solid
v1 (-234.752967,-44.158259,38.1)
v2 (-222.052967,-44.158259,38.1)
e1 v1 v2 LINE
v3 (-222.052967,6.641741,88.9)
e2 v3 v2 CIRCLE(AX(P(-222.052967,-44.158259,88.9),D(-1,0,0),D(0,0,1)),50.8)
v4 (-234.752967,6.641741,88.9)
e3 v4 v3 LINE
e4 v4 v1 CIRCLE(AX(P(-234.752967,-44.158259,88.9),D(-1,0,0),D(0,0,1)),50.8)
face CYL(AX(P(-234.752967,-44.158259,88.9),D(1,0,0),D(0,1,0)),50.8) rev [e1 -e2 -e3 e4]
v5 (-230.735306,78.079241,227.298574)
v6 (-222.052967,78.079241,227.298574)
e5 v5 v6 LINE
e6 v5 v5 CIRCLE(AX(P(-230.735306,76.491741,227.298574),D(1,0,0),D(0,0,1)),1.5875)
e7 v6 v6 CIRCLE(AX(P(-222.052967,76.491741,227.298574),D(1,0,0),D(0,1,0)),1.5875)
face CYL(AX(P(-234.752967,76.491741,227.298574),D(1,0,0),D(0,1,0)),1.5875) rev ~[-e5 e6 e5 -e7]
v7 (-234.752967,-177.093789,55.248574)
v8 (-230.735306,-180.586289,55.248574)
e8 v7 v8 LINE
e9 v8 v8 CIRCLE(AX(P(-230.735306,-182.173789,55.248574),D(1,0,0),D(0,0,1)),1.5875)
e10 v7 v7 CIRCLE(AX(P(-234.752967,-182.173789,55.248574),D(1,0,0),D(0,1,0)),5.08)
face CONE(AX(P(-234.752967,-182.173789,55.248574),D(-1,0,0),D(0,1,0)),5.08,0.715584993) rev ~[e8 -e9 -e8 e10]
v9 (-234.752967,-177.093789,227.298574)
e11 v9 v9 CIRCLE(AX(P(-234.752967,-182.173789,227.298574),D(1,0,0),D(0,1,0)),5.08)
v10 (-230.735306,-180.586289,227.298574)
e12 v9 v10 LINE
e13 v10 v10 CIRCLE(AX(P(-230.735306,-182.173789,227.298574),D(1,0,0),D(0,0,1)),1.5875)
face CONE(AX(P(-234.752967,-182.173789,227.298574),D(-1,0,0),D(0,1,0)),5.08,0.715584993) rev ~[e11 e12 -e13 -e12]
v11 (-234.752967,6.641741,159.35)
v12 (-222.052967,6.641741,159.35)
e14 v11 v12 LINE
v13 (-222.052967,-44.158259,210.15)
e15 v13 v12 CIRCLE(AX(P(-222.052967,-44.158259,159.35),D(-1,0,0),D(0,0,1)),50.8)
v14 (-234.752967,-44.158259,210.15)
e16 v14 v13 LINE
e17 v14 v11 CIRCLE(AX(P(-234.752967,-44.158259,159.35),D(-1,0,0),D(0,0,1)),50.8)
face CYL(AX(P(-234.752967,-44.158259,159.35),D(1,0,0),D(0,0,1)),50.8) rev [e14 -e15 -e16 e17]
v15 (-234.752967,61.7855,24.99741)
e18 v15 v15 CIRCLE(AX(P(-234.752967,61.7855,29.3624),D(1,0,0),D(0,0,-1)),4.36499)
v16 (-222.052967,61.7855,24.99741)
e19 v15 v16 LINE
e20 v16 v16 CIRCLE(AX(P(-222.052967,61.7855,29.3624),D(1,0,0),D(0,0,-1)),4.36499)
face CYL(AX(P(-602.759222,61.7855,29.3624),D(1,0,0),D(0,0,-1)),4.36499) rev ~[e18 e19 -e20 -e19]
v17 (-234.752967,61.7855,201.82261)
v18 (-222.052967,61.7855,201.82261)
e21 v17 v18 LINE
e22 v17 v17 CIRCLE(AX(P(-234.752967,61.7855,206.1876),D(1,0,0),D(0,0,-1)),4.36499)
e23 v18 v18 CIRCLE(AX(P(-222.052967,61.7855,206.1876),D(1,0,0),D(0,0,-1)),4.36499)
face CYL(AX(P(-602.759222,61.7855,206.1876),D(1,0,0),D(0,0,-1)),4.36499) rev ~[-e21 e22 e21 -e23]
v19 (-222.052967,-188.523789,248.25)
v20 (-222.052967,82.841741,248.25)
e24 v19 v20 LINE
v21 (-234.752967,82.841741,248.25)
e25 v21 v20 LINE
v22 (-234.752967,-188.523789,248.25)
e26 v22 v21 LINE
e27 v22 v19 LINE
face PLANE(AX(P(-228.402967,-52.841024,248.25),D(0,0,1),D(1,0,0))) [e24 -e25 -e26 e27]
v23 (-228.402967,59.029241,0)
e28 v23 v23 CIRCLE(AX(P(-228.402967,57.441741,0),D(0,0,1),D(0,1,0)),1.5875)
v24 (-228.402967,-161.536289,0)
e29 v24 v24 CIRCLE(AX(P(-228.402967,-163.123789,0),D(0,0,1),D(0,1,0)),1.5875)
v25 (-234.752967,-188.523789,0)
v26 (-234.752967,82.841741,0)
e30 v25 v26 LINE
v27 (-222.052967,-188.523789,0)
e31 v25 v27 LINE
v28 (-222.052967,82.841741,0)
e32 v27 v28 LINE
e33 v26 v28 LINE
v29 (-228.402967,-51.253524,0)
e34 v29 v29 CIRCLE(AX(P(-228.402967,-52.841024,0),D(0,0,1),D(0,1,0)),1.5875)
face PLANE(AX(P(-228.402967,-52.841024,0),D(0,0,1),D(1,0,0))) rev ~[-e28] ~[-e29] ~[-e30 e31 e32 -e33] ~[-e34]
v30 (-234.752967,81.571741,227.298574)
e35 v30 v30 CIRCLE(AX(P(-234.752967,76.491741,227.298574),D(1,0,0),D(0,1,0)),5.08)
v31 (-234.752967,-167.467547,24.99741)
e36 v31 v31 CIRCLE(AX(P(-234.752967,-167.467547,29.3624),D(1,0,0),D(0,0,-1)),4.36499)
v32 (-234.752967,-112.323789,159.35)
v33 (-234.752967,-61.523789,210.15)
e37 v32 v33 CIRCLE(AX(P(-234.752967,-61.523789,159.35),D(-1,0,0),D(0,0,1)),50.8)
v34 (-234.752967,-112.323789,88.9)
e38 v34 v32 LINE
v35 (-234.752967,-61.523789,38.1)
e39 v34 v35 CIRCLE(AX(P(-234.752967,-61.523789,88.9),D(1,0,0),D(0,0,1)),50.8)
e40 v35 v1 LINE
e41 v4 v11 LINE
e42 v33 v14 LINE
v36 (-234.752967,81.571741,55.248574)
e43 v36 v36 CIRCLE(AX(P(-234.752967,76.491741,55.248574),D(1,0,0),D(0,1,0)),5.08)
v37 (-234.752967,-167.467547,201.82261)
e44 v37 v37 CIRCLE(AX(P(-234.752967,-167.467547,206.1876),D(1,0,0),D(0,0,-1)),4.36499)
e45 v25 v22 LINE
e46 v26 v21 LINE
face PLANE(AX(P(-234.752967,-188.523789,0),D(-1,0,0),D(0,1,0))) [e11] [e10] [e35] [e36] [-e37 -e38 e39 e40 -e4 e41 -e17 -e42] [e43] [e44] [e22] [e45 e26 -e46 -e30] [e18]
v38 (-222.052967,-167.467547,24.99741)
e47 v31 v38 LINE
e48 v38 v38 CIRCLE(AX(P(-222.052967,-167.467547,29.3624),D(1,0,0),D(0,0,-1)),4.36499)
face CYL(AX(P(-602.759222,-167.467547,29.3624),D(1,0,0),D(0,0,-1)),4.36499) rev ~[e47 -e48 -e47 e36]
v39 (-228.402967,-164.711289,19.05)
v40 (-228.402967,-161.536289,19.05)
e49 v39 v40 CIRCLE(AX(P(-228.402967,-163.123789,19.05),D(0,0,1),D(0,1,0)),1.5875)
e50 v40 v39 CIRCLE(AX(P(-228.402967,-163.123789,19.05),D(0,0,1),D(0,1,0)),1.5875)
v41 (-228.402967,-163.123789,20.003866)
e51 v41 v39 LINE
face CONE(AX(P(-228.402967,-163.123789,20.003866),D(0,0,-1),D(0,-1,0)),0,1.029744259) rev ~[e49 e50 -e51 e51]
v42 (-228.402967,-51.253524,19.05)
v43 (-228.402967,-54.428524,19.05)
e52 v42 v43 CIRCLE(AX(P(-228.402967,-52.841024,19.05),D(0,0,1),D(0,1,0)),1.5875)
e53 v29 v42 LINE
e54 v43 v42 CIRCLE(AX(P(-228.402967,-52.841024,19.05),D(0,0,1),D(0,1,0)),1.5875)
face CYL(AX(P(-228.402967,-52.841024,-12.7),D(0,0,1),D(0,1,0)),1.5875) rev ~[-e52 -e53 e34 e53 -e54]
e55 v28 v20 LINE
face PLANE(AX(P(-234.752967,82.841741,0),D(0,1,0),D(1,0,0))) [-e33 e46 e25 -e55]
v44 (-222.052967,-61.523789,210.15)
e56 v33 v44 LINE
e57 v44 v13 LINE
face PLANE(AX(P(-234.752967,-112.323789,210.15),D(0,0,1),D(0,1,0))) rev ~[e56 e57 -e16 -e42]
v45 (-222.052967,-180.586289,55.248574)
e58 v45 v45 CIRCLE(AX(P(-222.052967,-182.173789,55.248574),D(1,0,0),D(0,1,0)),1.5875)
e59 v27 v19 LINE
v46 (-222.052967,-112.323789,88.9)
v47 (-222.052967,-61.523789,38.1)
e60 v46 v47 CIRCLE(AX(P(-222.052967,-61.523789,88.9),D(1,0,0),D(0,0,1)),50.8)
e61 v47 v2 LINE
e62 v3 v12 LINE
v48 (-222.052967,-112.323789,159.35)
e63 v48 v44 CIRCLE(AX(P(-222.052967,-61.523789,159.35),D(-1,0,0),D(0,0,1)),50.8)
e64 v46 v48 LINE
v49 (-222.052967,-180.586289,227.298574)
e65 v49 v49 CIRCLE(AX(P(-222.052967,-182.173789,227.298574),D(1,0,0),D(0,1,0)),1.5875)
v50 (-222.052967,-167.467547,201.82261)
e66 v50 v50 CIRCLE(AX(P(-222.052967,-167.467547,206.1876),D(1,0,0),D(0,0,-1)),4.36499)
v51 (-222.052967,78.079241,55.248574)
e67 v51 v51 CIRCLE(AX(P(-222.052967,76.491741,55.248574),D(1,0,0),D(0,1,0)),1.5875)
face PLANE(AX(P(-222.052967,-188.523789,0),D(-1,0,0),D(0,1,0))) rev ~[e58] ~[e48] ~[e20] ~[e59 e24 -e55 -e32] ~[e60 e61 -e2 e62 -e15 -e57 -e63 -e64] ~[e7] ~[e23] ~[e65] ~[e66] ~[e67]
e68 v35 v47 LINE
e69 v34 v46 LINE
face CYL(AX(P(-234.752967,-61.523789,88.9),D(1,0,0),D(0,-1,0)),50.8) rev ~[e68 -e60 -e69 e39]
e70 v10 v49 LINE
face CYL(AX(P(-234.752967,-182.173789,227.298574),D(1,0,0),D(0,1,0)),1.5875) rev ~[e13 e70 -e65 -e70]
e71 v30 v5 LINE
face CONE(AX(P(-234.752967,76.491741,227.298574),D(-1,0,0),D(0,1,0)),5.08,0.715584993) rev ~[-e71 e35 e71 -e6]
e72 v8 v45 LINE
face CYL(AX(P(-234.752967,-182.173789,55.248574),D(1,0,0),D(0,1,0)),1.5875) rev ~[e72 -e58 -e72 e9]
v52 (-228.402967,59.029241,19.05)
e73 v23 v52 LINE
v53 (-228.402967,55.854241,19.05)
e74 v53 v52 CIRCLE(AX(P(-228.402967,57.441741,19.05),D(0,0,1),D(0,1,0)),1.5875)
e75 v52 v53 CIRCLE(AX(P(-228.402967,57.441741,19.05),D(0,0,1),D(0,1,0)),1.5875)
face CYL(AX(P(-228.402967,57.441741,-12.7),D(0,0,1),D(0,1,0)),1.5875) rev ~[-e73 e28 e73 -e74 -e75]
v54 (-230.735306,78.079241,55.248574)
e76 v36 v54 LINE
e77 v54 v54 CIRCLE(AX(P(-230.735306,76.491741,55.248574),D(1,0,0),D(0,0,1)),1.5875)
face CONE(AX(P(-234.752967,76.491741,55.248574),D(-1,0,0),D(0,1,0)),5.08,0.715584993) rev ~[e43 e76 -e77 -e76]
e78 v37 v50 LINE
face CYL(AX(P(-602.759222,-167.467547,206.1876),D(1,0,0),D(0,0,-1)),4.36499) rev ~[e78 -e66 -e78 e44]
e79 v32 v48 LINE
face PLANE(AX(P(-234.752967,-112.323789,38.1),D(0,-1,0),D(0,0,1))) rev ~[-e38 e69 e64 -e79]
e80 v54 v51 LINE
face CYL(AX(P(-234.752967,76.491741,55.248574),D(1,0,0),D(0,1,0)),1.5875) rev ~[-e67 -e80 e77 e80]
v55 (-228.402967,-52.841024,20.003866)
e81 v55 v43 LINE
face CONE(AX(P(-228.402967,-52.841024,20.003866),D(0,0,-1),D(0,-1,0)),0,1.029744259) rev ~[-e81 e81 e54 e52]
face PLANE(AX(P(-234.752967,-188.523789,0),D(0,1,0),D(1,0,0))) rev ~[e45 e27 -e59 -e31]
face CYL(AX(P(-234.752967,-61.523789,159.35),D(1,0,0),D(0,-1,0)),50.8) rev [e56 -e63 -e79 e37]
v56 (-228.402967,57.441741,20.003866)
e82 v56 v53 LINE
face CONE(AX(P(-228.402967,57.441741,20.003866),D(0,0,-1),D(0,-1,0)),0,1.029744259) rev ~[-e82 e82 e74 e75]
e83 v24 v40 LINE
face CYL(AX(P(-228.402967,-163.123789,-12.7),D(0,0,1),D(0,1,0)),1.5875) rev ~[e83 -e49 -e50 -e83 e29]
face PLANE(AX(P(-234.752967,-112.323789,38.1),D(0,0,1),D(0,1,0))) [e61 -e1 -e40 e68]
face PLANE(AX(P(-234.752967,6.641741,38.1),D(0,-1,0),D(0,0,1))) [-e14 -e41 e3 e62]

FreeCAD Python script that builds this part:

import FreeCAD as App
import Part
import Sketcher
Q = App.Units.Quantity


def edges_at(feature, points):
    """Names of the edges that pass closest to the given points."""
    edges = feature.Shape.Edges
    near = lambda p: min(range(len(edges)), key=lambda i: edges[i].distToShape(Part.Vertex(*p))[0])
    return sorted({f"Edge{near(p) + 1}" for p in points})


def add_polygon(sketch, points):
    """Adds a closed chain of lines whose ends are joined by coincident constraints."""
    first, n = sketch.GeometryCount, len(points)
    for a, b in zip(points, points[1:] + points[:1]):
        sketch.addGeometry(Part.LineSegment(App.Vector(*a, 0), App.Vector(*b, 0)), False)
    for i in range(n):
        sketch.addConstraint(Sketcher.Constraint("Coincident", first + i, 2, first + (i + 1) % n, 1))

doc = App.newDocument("Part")
body = doc.addObject("PartDesign::Body", "Body")

# Sketch on XY plane
sketch1 = body.newObject("Sketcher::SketchObject", "Sketch")
sketch1.AttachmentSupport = (doc.getObject("XY_Plane"), [""])
sketch1.MapMode = "FlatFace"
add_polygon(sketch1, [(-234.752967, 82.841741), (-234.752967, -188.523789), (-222.052967, -188.523789), (-222.052967, 82.841741)])  # lines 0-3
sketch1.addConstraint([
    Sketcher.Constraint("Vertical", 0),
    Sketcher.Constraint("Horizontal", 1),
    Sketcher.Constraint("Vertical", 2),
    Sketcher.Constraint("Horizontal", 3),
    Sketcher.Constraint("DistanceX", 1, 1, 1, 2, Q("0.5 in")),
    Sketcher.Constraint("DistanceY", 0, 2, 0, 1, Q("271.36553 mm")),
    Sketcher.Constraint("DistanceY", 0, 2, -1, 1, Q("188.523789 mm")),
    Sketcher.Constraint("DistanceX", 0, 2, -1, 1, Q("234.752967 mm")),
])
pad1 = body.newObject("PartDesign::Pad", "Pad")
pad1.Profile = sketch1
pad1.Length = 248.25

# Sketch on YZ plane
sketch2 = body.newObject("Sketcher::SketchObject", "Sketch001")
sketch2.AttachmentSupport = (doc.getObject("YZ_Plane"), [""])
sketch2.MapMode = "FlatFace"
sketch2.AttachmentOffset = App.Placement(App.Vector(0, 0, -234.752967), App.Rotation())
add_polygon(sketch2, [(6.641741, 38.1), (-112.323789, 38.1), (-112.323789, 210.15), (6.641741, 210.15)])  # lines 0-3
sketch2.addConstraint([
    Sketcher.Constraint("Horizontal", 0),
    Sketcher.Constraint("Vertical", 1),
    Sketcher.Constraint("Horizontal", 2),
    Sketcher.Constraint("Vertical", 3),
    Sketcher.Constraint("DistanceY", -1, 1, 0, 2, Q("1.5 in")),
    Sketcher.Constraint("DistanceY", 1, 1, 1, 2, Q("172.05 mm")),
    Sketcher.Constraint("DistanceX", 0, 2, 0, 1, Q("118.96553 mm")),
    Sketcher.Constraint("DistanceX", 0, 2, -1, 1, Q("112.323789 mm")),
])
pocket1 = body.newObject("PartDesign::Pocket", "Pocket")
pocket1.Profile = sketch2
pocket1.Type = "ThroughAll"
pocket1.Reversed = True
doc.recompute()

fillet = body.newObject("PartDesign::Fillet", "Fillet")
fillet.Base = (pocket1, edges_at(pocket1, [
    (-228.403, 6.642, 210.15),
    (-228.403, -112.324, 210.15),
    (-228.403, -112.324, 38.1),
    (-228.403, 6.642, 38.1),
]))
fillet.Radius = Q("2 in")

# Sketch on XY plane
sketch3 = body.newObject("Sketcher::SketchObject", "Sketch002")
sketch3.AttachmentSupport = (doc.getObject("XY_Plane"), [""])
sketch3.MapMode = "FlatFace"
sketch3.AttachmentOffset = App.Placement(App.Vector(0, 0, -0.5 * 25.4), App.Rotation())
sketch3.addGeometry([
    Part.Circle(App.Vector(-203.002967, -182.173789, 0), App.Vector(0, 0, 1), 1.5875),  # 0
    Part.Circle(App.Vector(-203.002967, 76.491741, 0), App.Vector(0, 0, 1), 1.5875),  # 1
    Part.Circle(App.Vector(-123.747327, 76.491741, 0), App.Vector(0, 0, 1), 1.5875),  # 2
    Part.Circle(App.Vector(-228.402967, 57.441741, 0), App.Vector(0, 0, 1), 1.5875),  # 3
    Part.Circle(App.Vector(-228.402967, -52.841024, 0), App.Vector(0, 0, 1), 1.5875),  # 4
    Part.Circle(App.Vector(-228.402967, -163.123789, 0), App.Vector(0, 0, 1), 1.5875),  # 5
    Part.Circle(App.Vector(-123.747327, -182.173789, 0), App.Vector(0, 0, 1), 1.5875),  # 6
], False)
sketch3.addConstraint([
    Sketcher.Constraint("Equal", 0, 1),
    Sketcher.Constraint("Equal", 1, 2),
    Sketcher.Constraint("Equal", 2, 3),
    Sketcher.Constraint("Equal", 3, 4),
    Sketcher.Constraint("Equal", 4, 5),
    Sketcher.Constraint("Equal", 5, 6),
    Sketcher.Constraint("Horizontal", 1, 3, 2, 3),
    Sketcher.Constraint("Horizontal", 0, 3, 6, 3),
    Sketcher.Constraint("Vertical", 0, 3, 1, 3),
    Sketcher.Constraint("Vertical", 3, 3, 4, 3),
    Sketcher.Constraint("Vertical", 4, 3, 5, 3),
    Sketcher.Constraint("Vertical", 2, 3, 6, 3),
    Sketcher.Constraint("Diameter", 0, Q("0.125 in")),
    Sketcher.Constraint("DistanceX", 3, 3, 1, 3, Q("1 in")),
    Sketcher.Constraint("DistanceY", 3, 3, 1, 3, Q("0.75 in")),
    Sketcher.Constraint("DistanceY", 0, 3, 5, 3, Q("0.75 in")),
    Sketcher.Constraint("DistanceY", 0, 3, -1, 1, Q("182.173789 mm")),
    Sketcher.Constraint("DistanceY", -1, 1, 1, 3, Q("76.491741 mm")),
    Sketcher.Constraint("DistanceX", 1, 3, 2, 3, Q("79.25564 mm")),
    Sketcher.Constraint("DistanceX", 0, 3, -1, 1, Q("203.002967 mm")),
    Sketcher.Constraint("DistanceY", 4, 3, -1, 1, Q("52.841024 mm")),
])
doc.recompute()
hole = body.newObject("PartDesign::Hole", "Hole")
hole.Profile = sketch3
hole.ThreadType = "None"
hole.Diameter = Q("0.125 in")
hole.DepthType = "Dimension"
hole.Depth = Q("1.25 in")
hole.DrillPoint = "Angled"
hole.DrillPointAngle = 118
hole.HoleCutType = "Countersink"
hole.HoleCutDiameter = Q("0.4 in")
hole.HoleCutCountersinkAngle = 82
hole.Reversed = True

# Sketch on YZ plane
sketch4 = body.newObject("Sketcher::SketchObject", "Sketch003")
sketch4.AttachmentSupport = (doc.getObject("YZ_Plane"), [""])
sketch4.MapMode = "FlatFace"
sketch4.AttachmentOffset = App.Placement(App.Vector(0, 0, -234.752967), App.Rotation())
sketch4.addGeometry([
    Part.Circle(App.Vector(76.491741, 227.298574, 0), App.Vector(0, 0, 1), 1.5875),
    Part.Circle(App.Vector(76.491741, 55.248574, 0), App.Vector(0, 0, 1), 1.5875),
    Part.Circle(App.Vector(-182.173789, 55.248574, 0), App.Vector(0, 0, 1), 1.5875),
    Part.Circle(App.Vector(-182.173789, 227.298574, 0), App.Vector(0, 0, 1), 1.5875),
], False)
sketch4.addConstraint([
    Sketcher.Constraint("Equal", 0, 1),
    Sketcher.Constraint("Equal", 1, 2),
    Sketcher.Constraint("Equal", 2, 3),
    Sketcher.Constraint("Horizontal", 1, 3, 2, 3),
    Sketcher.Constraint("Horizontal", 0, 3, 3, 3),
    Sketcher.Constraint("Vertical", 0, 3, 1, 3),
    Sketcher.Constraint("Vertical", 2, 3, 3, 3),
    Sketcher.Constraint("Diameter", 0, Q("0.125 in")),
    Sketcher.Constraint("DistanceY", 1, 3, 0, 3, Q("172.05 mm")),
    Sketcher.Constraint("DistanceX", -1, 1, 0, 3, Q("76.491741 mm")),
    Sketcher.Constraint("DistanceX", 2, 3, -1, 1, Q("182.173789 mm")),
    Sketcher.Constraint("DistanceY", -1, 1, 0, 3, Q("227.298574 mm")),
])
doc.recompute()
hole2 = body.newObject("PartDesign::Hole", "Hole001")
hole2.Profile = sketch4
hole2.ThreadType = "None"
hole2.Diameter = Q("0.125 in")
hole2.DepthType = "Dimension"
hole2.Depth = Q("1.25 in")
hole2.DrillPoint = "Angled"
hole2.DrillPointAngle = 118
hole2.HoleCutType = "Countersink"
hole2.HoleCutDiameter = Q("0.4 in")
hole2.HoleCutCountersinkAngle = 82
hole2.Reversed = True

# Sketch on YZ plane
sketch5 = body.newObject("Sketcher::SketchObject", "Sketch004")
sketch5.AttachmentSupport = (doc.getObject("YZ_Plane"), [""])
sketch5.MapMode = "FlatFace"
sketch5.AttachmentOffset = App.Placement(App.Vector(0, 0, -234.752967), App.Rotation())
sketch5.addGeometry([
    Part.Circle(App.Vector(-167.467547, 206.1876, 0), App.Vector(0, 0, 1), 4.36499),
    Part.Circle(App.Vector(61.7855, 206.1876, 0), App.Vector(0, 0, 1), 4.36499),
    Part.Circle(App.Vector(61.7855, 29.3624, 0), App.Vector(0, 0, 1), 4.36499),
    Part.Circle(App.Vector(-167.467547, 29.3624, 0), App.Vector(0, 0, 1), 4.36499),
], False)
sketch5.addConstraint([
    Sketcher.Constraint("Equal", 0, 1),
    Sketcher.Constraint("Equal", 1, 2),
    Sketcher.Constraint("Equal", 2, 3),
    Sketcher.Constraint("Horizontal", 0, 3, 1, 3),
    Sketcher.Constraint("Horizontal", 2, 3, 3, 3),
    Sketcher.Constraint("Vertical", 1, 3, 2, 3),
    Sketcher.Constraint("Vertical", 0, 3, 3, 3),
    Sketcher.Constraint("Diameter", 0, Q("0.3437 in")),
    Sketcher.Constraint("DistanceY", -1, 1, 2, 3, Q("1.156 in")),
    Sketcher.Constraint("DistanceX", -1, 1, 1, 3, Q("2.4325 in")),
    Sketcher.Constraint("DistanceY", -1, 1, 0, 3, Q("206.1876 mm")),
    Sketcher.Constraint("DistanceX", 0, 3, -1, 1, Q("167.467547 mm")),
])
doc.recompute()
hole3 = body.newObject("PartDesign::Hole", "Hole002")
hole3.Profile = sketch5
hole3.ThreadType = "None"
hole3.Diameter = Q("0.3437 in")
hole3.DepthType = "ThroughAll"
hole3.Reversed = True

doc.recompute()
